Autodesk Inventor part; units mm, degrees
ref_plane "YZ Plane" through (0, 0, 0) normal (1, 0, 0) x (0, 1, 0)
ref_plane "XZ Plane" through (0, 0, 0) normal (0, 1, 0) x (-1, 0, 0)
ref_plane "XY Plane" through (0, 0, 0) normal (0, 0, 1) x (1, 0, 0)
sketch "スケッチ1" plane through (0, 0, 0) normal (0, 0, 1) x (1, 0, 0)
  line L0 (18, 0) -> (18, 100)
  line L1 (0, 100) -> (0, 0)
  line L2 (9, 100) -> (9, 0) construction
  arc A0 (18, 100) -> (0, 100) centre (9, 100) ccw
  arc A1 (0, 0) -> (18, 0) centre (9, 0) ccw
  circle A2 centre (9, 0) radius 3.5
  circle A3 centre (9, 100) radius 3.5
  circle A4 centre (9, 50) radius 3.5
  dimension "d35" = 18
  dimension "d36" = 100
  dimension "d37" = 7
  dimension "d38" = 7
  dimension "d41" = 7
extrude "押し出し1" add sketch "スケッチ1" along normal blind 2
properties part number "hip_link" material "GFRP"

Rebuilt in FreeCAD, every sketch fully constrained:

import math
import FreeCAD as App
import Part
import Sketcher

V = App.Vector

doc = App.newDocument("Part")
body = doc.addObject("PartDesign::Body", "Body")

sketch1 = body.newObject("Sketcher::SketchObject", "Sketch")
sketch1.AttachmentSupport = (doc.getObject("XY_Plane"), [""])
sketch1.MapMode = "FlatFace"
sketch1.addGeometry(Part.ArcOfCircle(Part.Circle(V(9, 0, 0), V(0, 0, 1), 9), math.radians(180), math.radians(360)), False)
sketch1.addGeometry(Part.LineSegment(V(18, 0, 0), V(18, 100, 0)), False)
sketch1.addGeometry(Part.ArcOfCircle(Part.Circle(V(9, 100, 0), V(0, 0, 1), 9), math.radians(0), math.radians(180)), False)
sketch1.addGeometry(Part.LineSegment(V(0, 100, 0), V(0, 0, 0)), False)
sketch1.addGeometry(Part.Circle(V(9, 0, 0), V(0, 0, 1), 3.5), False)
sketch1.addGeometry(Part.Circle(V(9, 50, 0), V(0, 0, 1), 3.5), False)
sketch1.addGeometry(Part.Circle(V(9, 100, 0), V(0, 0, 1), 3.5), False)
sketch1.addConstraint(Sketcher.Constraint("Tangent", 0, 2, 1, 1))
sketch1.addConstraint(Sketcher.Constraint("Tangent", 1, 2, 2, 1))
sketch1.addConstraint(Sketcher.Constraint("Tangent", 2, 2, 3, 1))
sketch1.addConstraint(Sketcher.Constraint("Tangent", 3, 2, 0, 1))
sketch1.addConstraint(Sketcher.Constraint("Vertical", 1))
sketch1.addConstraint(Sketcher.Constraint("Vertical", 3))
sketch1.addConstraint(Sketcher.Constraint("Coincident", 3, 2, -1, 1))
sketch1.addConstraint(Sketcher.Constraint("Coincident", 4, 3, 0, 3))
sketch1.addConstraint(Sketcher.Constraint("Coincident", 6, 3, 2, 3))
sketch1.addConstraint(Sketcher.Constraint("Equal", 4, 5))
sketch1.addConstraint(Sketcher.Constraint("Equal", 5, 6))
sketch1.addConstraint(Sketcher.Constraint("Vertical", 4, 3, 5, 3))
sketch1.addConstraint(Sketcher.Constraint("Diameter", 4, 7.0))
sketch1.addConstraint(Sketcher.Constraint("Radius", 0, 9.0))
sketch1.addConstraint(Sketcher.Constraint("DistanceY", 1, 1, 1, 2, 100.0))
sketch1.addConstraint(Sketcher.Constraint("DistanceY", -1, 1, 5, 3, 50.0))
pad1 = body.newObject("PartDesign::Pad", "Pad")
pad1.Profile = sketch1
pad1.Length = 2

doc.recompute()
